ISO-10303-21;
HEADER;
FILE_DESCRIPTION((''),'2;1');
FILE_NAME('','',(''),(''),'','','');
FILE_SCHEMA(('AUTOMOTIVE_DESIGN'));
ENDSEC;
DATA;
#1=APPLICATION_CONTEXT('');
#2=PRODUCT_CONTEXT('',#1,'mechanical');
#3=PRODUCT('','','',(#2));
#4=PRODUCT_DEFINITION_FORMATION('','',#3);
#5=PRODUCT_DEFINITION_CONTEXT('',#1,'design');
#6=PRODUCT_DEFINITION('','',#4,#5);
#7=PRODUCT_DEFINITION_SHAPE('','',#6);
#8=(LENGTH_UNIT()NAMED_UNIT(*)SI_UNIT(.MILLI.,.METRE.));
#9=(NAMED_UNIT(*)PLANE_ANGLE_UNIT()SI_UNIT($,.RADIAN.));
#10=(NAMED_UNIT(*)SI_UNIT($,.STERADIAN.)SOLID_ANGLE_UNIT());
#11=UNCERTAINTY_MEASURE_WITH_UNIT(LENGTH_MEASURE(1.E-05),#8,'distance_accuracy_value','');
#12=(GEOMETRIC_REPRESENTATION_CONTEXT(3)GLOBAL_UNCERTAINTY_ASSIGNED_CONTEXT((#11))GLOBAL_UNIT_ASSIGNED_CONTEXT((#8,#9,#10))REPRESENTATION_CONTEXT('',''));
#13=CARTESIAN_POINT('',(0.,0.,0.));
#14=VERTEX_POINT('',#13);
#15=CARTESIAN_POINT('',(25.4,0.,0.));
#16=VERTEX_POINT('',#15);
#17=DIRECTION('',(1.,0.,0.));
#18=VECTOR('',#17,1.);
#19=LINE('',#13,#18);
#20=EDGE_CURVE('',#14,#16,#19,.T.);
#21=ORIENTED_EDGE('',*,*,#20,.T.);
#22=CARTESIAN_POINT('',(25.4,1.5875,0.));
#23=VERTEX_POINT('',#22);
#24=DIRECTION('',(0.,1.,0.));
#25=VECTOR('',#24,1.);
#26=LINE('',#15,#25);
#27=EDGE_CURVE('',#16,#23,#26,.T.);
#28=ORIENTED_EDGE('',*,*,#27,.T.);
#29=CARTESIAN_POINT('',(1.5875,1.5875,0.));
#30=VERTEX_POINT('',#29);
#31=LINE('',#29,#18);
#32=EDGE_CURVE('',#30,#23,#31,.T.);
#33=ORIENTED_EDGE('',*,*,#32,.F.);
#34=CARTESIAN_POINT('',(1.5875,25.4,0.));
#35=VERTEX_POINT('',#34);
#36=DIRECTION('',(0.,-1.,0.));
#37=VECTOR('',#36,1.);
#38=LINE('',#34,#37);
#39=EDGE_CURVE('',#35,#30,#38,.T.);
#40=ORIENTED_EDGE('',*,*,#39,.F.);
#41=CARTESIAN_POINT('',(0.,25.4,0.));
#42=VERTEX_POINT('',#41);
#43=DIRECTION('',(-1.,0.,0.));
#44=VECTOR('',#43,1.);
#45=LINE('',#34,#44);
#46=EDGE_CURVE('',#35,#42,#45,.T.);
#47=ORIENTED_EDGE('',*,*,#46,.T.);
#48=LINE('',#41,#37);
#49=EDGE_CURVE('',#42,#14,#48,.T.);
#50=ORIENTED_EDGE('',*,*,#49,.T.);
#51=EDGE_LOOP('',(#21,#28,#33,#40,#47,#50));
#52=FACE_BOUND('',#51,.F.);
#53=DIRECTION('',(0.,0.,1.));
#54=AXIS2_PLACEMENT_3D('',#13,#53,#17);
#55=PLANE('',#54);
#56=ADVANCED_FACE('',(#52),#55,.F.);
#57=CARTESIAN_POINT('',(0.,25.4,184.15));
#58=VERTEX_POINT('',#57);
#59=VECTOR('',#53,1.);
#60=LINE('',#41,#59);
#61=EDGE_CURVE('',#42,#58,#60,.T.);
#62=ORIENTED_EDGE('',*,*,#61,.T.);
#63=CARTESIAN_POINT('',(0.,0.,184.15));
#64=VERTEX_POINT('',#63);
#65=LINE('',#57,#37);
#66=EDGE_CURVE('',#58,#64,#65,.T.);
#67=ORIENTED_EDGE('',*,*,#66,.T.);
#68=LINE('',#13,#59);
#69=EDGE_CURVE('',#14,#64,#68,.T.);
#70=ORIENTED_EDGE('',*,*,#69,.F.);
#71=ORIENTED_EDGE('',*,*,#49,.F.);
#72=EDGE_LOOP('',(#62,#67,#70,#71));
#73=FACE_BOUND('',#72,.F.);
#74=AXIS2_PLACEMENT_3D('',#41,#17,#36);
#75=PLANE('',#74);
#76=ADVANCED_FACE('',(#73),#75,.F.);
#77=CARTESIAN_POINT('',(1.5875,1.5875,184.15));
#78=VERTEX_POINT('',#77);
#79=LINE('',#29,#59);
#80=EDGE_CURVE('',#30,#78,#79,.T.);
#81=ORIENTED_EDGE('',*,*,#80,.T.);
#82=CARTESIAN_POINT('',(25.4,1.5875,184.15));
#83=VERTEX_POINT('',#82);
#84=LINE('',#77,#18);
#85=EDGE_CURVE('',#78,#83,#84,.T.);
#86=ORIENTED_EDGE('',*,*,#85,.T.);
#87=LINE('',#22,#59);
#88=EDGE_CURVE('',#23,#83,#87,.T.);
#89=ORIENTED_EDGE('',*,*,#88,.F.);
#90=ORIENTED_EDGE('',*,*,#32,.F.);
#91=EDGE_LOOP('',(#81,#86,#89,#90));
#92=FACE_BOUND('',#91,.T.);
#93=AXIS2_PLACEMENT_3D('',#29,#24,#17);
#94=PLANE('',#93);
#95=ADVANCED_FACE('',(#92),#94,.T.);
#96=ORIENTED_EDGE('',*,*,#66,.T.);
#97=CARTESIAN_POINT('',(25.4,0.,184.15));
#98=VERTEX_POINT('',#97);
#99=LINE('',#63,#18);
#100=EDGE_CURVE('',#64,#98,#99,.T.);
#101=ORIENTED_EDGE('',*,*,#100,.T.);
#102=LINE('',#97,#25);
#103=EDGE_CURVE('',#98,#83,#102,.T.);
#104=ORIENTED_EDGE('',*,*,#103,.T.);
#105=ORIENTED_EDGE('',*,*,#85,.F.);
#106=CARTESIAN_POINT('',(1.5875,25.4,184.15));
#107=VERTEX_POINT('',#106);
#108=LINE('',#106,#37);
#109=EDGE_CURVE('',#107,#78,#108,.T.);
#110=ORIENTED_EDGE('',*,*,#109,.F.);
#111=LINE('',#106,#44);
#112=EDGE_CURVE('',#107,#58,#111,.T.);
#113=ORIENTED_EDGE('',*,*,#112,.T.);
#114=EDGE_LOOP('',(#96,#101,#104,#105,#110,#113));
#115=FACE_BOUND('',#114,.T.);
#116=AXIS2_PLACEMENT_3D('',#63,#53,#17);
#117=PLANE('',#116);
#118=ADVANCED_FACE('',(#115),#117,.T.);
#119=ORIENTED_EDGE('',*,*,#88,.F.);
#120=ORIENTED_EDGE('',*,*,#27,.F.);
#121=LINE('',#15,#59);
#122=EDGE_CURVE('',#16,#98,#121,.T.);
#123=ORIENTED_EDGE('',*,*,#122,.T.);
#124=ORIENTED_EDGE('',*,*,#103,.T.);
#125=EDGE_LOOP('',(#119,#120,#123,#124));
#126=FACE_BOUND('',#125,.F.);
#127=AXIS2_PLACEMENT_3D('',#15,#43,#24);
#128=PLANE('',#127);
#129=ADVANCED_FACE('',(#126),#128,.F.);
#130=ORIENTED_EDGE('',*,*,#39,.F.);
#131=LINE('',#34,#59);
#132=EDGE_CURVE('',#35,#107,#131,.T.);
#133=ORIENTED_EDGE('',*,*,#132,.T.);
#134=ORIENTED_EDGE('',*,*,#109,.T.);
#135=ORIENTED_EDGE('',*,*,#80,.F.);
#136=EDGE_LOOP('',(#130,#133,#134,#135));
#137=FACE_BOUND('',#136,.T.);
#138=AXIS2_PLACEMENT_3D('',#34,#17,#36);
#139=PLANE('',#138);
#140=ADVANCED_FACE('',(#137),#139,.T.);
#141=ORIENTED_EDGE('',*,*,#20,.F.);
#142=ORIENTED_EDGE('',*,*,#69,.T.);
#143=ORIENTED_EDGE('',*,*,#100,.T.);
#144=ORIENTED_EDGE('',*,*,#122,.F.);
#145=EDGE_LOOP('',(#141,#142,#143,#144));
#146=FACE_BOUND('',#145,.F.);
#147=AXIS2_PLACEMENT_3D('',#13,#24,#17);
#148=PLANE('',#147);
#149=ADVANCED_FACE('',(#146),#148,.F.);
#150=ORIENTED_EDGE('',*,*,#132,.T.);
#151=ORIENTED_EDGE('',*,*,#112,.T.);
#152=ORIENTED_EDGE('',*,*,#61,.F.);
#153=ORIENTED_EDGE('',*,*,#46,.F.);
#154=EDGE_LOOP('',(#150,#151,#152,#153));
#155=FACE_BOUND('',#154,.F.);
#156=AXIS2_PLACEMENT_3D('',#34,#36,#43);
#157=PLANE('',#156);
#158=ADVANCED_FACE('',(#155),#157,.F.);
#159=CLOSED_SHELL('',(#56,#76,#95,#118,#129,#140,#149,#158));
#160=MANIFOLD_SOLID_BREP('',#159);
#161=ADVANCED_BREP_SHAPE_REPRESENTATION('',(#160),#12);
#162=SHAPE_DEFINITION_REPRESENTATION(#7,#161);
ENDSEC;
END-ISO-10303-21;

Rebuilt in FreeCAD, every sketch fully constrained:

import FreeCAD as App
import Part
import Sketcher
from FreeCAD import Vector
Q = App.Units.Quantity


def add_polygon(sketch, points):
    """Adds a closed chain of lines whose ends are joined by coincident constraints."""
    first, n = sketch.GeometryCount, len(points)
    for a, b in zip(points, points[1:] + points[:1]):
        sketch.addGeometry(Part.LineSegment(App.Vector(*a, 0), App.Vector(*b, 0)), False)
    for i in range(n):
        sketch.addConstraint(Sketcher.Constraint("Coincident", first + i, 2, first + (i + 1) % n, 1))

doc = App.newDocument("Part")
params = doc.addObject("Spreadsheet::Sheet", "Params")
for row, (alias, value) in enumerate([
    ("sketch1_width", "1 in"),
    ("sketch1_width2", "0.0625 in"),
    ("pad1_length", "7.25 in"),
], start=1):
    params.set(f"A{row}", alias)
    params.set(f"B{row}", "=" + value)
    params.setAlias(f"B{row}", alias)

body = doc.addObject("PartDesign::Body", "Body")

# Sketch on XY plane
sketch1 = doc.addObject("Sketcher::SketchObject", "Sketch")
body.addObject(sketch1)
sketch1.AttachmentSupport = (doc.XY_Plane, [""])
sketch1.MapMode = "FlatFace"
add_polygon(sketch1, [(0, 25.4), (0, 0), (25.4, 0), (25.4, 1.6), (1.6, 1.6), (1.6, 25.4)])  # lines 0-5
sketch1.addConstraint(Sketcher.Constraint("Vertical", 0))
sketch1.addConstraint(Sketcher.Constraint("Horizontal", 1))
sketch1.addConstraint(Sketcher.Constraint("Vertical", 2))
sketch1.addConstraint(Sketcher.Constraint("Horizontal", 3))
sketch1.addConstraint(Sketcher.Constraint("Vertical", 4))
sketch1.addConstraint(Sketcher.Constraint("Horizontal", 5))
sketch1.addConstraint(Sketcher.Constraint("Coincident", 0, 2, -1, 1))
sketch1.addConstraint(Sketcher.Constraint("Equal", 1, 0))
sketch1.addConstraint(Sketcher.Constraint("Equal", 5, 2))
sketch1.addConstraint(Sketcher.Constraint("DistanceX", 1, 1, 1, 2, Q("1 in")))
sketch1.addConstraint(Sketcher.Constraint("DistanceX", 5, 2, 5, 1, Q("0.0625 in")))
sketch1.setExpression("Constraints[15]", "Params.sketch1_width")
sketch1.setExpression("Constraints[16]", "Params.sketch1_width2")
pad1 = doc.addObject("PartDesign::Pad", "Pad")
body.addObject(pad1)
pad1.Profile = sketch1
pad1.setExpression("Length", "Params.pad1_length")

doc.recompute()
